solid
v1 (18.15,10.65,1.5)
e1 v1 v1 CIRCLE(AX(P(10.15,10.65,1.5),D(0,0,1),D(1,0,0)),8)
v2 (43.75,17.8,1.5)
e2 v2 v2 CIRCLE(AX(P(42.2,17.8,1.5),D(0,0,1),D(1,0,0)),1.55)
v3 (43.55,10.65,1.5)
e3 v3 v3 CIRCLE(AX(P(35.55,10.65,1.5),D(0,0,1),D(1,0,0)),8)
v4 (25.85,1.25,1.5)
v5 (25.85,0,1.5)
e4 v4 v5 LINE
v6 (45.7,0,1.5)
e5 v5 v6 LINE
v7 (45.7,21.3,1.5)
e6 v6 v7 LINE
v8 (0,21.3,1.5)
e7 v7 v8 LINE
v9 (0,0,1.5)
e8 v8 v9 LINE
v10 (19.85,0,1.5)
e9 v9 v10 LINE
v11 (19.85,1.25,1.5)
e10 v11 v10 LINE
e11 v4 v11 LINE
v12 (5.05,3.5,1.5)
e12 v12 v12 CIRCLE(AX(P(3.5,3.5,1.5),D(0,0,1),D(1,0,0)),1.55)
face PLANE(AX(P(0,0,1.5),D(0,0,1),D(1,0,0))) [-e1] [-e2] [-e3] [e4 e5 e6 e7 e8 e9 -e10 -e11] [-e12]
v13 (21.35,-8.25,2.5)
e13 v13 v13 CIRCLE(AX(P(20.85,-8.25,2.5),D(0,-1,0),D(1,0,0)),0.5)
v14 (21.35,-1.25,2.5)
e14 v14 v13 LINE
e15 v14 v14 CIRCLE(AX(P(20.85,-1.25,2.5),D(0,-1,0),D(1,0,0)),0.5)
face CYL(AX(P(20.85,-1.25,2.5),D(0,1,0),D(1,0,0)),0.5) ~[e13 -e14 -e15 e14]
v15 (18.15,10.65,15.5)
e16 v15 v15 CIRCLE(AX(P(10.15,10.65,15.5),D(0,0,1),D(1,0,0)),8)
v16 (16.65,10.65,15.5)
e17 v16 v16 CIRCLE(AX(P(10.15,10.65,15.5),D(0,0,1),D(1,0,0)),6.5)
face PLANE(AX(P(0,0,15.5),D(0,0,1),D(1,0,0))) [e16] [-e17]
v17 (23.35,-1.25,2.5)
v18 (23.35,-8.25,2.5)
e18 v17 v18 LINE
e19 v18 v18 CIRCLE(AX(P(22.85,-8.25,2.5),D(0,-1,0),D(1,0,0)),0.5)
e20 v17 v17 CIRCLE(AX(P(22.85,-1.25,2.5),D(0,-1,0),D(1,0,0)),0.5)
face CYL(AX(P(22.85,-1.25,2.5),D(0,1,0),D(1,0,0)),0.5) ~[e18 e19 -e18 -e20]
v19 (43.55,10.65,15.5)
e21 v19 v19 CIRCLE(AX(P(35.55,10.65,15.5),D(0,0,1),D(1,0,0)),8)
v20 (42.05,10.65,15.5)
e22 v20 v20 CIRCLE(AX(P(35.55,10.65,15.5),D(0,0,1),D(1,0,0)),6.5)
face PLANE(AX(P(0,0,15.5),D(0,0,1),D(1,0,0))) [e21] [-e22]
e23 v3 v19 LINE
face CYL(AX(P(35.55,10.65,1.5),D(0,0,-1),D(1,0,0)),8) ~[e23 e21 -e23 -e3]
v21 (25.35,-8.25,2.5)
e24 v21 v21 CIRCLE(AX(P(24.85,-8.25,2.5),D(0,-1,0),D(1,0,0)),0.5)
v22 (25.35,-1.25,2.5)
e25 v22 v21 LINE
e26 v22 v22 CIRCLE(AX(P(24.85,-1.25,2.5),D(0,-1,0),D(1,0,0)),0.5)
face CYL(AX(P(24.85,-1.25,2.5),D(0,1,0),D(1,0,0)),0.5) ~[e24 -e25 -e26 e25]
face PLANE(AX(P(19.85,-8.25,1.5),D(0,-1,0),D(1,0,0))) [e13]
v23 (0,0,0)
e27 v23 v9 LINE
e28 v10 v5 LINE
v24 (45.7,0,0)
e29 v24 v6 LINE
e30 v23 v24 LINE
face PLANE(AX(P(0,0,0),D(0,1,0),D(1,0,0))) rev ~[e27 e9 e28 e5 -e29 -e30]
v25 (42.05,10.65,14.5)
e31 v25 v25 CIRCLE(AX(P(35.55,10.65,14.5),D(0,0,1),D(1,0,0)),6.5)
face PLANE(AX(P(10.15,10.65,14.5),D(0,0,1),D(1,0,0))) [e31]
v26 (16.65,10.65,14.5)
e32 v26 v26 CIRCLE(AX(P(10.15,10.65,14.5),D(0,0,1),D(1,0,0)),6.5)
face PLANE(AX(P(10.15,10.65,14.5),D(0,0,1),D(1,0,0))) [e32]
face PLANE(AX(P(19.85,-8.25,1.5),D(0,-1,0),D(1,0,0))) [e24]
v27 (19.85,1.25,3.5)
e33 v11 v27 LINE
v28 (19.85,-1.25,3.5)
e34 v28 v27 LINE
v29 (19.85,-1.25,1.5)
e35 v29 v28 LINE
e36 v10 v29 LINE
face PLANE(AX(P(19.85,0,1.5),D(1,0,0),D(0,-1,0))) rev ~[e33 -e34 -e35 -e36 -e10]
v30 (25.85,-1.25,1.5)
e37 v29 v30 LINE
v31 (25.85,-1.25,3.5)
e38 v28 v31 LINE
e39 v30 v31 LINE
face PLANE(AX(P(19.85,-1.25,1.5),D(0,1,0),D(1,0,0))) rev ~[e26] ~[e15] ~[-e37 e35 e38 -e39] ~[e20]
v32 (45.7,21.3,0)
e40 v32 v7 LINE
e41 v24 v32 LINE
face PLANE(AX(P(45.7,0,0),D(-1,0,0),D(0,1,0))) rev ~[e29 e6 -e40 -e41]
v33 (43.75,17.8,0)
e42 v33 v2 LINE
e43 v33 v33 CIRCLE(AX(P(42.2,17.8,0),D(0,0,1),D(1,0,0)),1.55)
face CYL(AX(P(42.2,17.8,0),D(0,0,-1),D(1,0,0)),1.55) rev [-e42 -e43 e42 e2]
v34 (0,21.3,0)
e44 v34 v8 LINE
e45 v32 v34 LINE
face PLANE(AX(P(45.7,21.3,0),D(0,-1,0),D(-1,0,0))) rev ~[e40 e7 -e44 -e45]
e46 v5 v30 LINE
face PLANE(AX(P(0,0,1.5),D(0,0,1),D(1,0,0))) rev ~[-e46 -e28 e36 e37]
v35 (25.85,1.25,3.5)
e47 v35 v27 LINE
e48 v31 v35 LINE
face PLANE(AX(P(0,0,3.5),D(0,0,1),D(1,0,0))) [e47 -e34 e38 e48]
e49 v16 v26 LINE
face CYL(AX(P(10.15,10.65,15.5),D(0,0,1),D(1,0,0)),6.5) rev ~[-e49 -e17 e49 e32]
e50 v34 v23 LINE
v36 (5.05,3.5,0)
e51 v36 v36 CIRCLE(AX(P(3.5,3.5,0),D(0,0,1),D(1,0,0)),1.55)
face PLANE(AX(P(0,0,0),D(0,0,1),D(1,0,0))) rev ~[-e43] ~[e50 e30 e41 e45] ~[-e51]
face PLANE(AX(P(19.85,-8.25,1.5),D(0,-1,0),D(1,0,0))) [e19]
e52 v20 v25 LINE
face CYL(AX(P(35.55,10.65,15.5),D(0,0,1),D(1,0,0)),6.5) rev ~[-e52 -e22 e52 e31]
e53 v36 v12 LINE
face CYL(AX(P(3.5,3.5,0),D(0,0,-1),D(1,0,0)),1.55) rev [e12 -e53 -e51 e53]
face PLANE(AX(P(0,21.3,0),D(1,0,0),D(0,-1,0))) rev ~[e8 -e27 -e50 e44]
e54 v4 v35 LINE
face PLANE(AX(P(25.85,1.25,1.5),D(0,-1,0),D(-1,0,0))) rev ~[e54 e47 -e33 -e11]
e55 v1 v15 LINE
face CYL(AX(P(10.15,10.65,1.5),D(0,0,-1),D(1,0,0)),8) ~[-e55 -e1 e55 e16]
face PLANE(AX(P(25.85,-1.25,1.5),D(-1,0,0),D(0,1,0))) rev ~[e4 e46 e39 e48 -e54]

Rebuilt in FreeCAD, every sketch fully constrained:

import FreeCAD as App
import Part
import Sketcher

V = App.Vector

doc = App.newDocument("Part")
body = doc.addObject("PartDesign::Body", "Body")

# Sketch on XY plane
sketch1 = body.newObject("Sketcher::SketchObject", "Sketch")
sketch1.AttachmentSupport = (doc.getObject("XY_Plane"), [""])
sketch1.MapMode = "FlatFace"
sketch1.addGeometry([
    Part.LineSegment(V(0, 21.3, 0), V(0, 0, 0)),  # 0
    Part.LineSegment(V(0, 0, 0), V(45.7, 0, 0)),  # 1
    Part.LineSegment(V(45.7, 0, 0), V(45.7, 21.3, 0)),  # 2
    Part.LineSegment(V(45.7, 21.3, 0), V(0, 21.3, 0)),  # 3
    Part.Circle(V(3.5, 3.5, 0), V(0, 0, 1), 1.6),  # 4
    Part.Circle(V(42.2, 17.8, 0), V(0, 0, 1), 1.6),  # 5
], False)
sketch1.addConstraint([
    Sketcher.Constraint("Coincident", 0, 2, 1, 1),
    Sketcher.Constraint("Coincident", 1, 2, 2, 1),
    Sketcher.Constraint("Coincident", 2, 2, 3, 1),
    Sketcher.Constraint("Coincident", 3, 2, 0, 1),
    Sketcher.Constraint("Vertical", 0),
    Sketcher.Constraint("Horizontal", 1),
    Sketcher.Constraint("Vertical", 2),
    Sketcher.Constraint("Horizontal", 3),
    Sketcher.Constraint("Coincident", 0, 2, -1, 1),
    Sketcher.Constraint("Equal", 4, 5),
    Sketcher.Constraint("Diameter", 4, 3.1),
    Sketcher.Constraint("DistanceX", 1, 1, 1, 2, 45.7),
    Sketcher.Constraint("DistanceY", 0, 2, 0, 1, 21.3),
    Sketcher.Constraint("DistanceX", -1, 1, 4, 3, 3.5),
    Sketcher.Constraint("DistanceY", -1, 1, 4, 3, 3.5),
    Sketcher.Constraint("DistanceX", 5, 3, 1, 2, 3.5),
    Sketcher.Constraint("DistanceY", 5, 3, 2, 2, 3.5),
])
pad1 = body.newObject("PartDesign::Pad", "Pad")
pad1.Profile = sketch1
pad1.Length = 1.5

# Sketch on XY plane
sketch2 = body.newObject("Sketcher::SketchObject", "Sketch001")
sketch2.AttachmentSupport = (doc.getObject("XY_Plane"), [""])
sketch2.MapMode = "FlatFace"
sketch2.AttachmentOffset = App.Placement(V(0, 0, 1.5), App.Rotation())
sketch2.addGeometry([
    Part.Circle(V(10, 11, 0), V(0, 0, 1), 8),
    Part.Circle(V(36, 11, 0), V(0, 0, 1), 8),
], False)
sketch2.addConstraint([
    Sketcher.Constraint("Equal", 0, 1),
    Sketcher.Constraint("Horizontal", 0, 3, 1, 3),
    Sketcher.Constraint("Diameter", 0, 16.0),
    Sketcher.Constraint("DistanceX", 0, 3, 1, 3, 25.4),
    Sketcher.Constraint("DistanceX", -1, 1, 0, 3, 10.15),
    Sketcher.Constraint("DistanceY", -1, 1, 0, 3, 10.65),
])
pad2 = body.newObject("PartDesign::Pad", "Pad001")
pad2.Profile = sketch2
pad2.Length = 14

# Sketch on XY plane
sketch3 = body.newObject("Sketcher::SketchObject", "Sketch002")
sketch3.AttachmentSupport = (doc.getObject("XY_Plane"), [""])
sketch3.MapMode = "FlatFace"
sketch3.AttachmentOffset = App.Placement(V(0, 0, 15.5), App.Rotation())
sketch3.addGeometry([
    Part.Circle(V(10, 11, 0), V(0, 0, 1), 6),
    Part.Circle(V(36, 11, 0), V(0, 0, 1), 6),
], False)
sketch3.addConstraint([
    Sketcher.Constraint("Equal", 0, 1),
    Sketcher.Constraint("Horizontal", 0, 3, 1, 3),
    Sketcher.Constraint("Diameter", 0, 13.0),
    Sketcher.Constraint("DistanceX", 0, 3, 1, 3, 25.4),
    Sketcher.Constraint("DistanceX", -1, 1, 0, 3, 10.15),
    Sketcher.Constraint("DistanceY", -1, 1, 0, 3, 10.65),
])
pocket1 = body.newObject("PartDesign::Pocket", "Pocket")
pocket1.Profile = sketch3
pocket1.Length = 1

# Sketch on XY plane
sketch4 = body.newObject("Sketcher::SketchObject", "Sketch003")
sketch4.AttachmentSupport = (doc.getObject("XY_Plane"), [""])
sketch4.MapMode = "FlatFace"
sketch4.AttachmentOffset = App.Placement(V(0, 0, 1.5), App.Rotation())
sketch4.addGeometry([
    Part.LineSegment(V(19.9, -1.2, 0), V(25.9, -1.2, 0)),
    Part.LineSegment(V(25.9, -1.2, 0), V(25.9, 1.2, 0)),
    Part.LineSegment(V(25.9, 1.2, 0), V(19.9, 1.2, 0)),
    Part.LineSegment(V(19.9, 1.2, 0), V(19.9, -1.2, 0)),
], False)
sketch4.addConstraint([
    Sketcher.Constraint("Coincident", 0, 2, 1, 1),
    Sketcher.Constraint("Coincident", 1, 2, 2, 1),
    Sketcher.Constraint("Coincident", 2, 2, 3, 1),
    Sketcher.Constraint("Coincident", 3, 2, 0, 1),
    Sketcher.Constraint("Horizontal", 0),
    Sketcher.Constraint("Vertical", 1),
    Sketcher.Constraint("Horizontal", 2),
    Sketcher.Constraint("Vertical", 3),
    Sketcher.Constraint("DistanceX", 0, 1, 0, 2, 6.0),
    Sketcher.Constraint("DistanceY", 1, 1, 1, 2, 2.5),
    Sketcher.Constraint("DistanceX", -1, 1, 0, 2, 25.85),
    Sketcher.Constraint("DistanceY", 0, 2, -1, 1, 1.25),
])
pad3 = body.newObject("PartDesign::Pad", "Pad002")
pad3.Profile = sketch4
pad3.Length = 2

# Sketch on XZ plane
sketch5 = body.newObject("Sketcher::SketchObject", "Sketch004")
sketch5.AttachmentSupport = (doc.getObject("XZ_Plane"), [""])
sketch5.MapMode = "FlatFace"
sketch5.AttachmentOffset = App.Placement(V(0, 0, 1.25), App.Rotation())
sketch5.addGeometry([
    Part.Circle(V(22.9, 2.5, 0), V(0, 0, 1), 0.5),
    Part.Circle(V(20.9, 2.5, 0), V(0, 0, 1), 0.5),
    Part.Circle(V(24.9, 2.5, 0), V(0, 0, 1), 0.5),
], False)
sketch5.addConstraint([
    Sketcher.Constraint("Equal", 0, 1),
    Sketcher.Constraint("Equal", 1, 2),
    Sketcher.Constraint("Horizontal", 0, 3, 1, 3),
    Sketcher.Constraint("Horizontal", 1, 3, 2, 3),
    Sketcher.Constraint("Diameter", 0, 1.0),
    Sketcher.Constraint("DistanceX", 1, 3, 0, 3, 2.0),
    Sketcher.Constraint("DistanceX", 0, 3, 2, 3, 2.0),
    Sketcher.Constraint("DistanceY", -1, 1, 0, 3, 2.5),
    Sketcher.Constraint("DistanceX", -1, 1, 0, 3, 22.85),
])
pad4 = body.newObject("PartDesign::Pad", "Pad003")
pad4.Profile = sketch5
pad4.Length = 7

doc.recompute()
